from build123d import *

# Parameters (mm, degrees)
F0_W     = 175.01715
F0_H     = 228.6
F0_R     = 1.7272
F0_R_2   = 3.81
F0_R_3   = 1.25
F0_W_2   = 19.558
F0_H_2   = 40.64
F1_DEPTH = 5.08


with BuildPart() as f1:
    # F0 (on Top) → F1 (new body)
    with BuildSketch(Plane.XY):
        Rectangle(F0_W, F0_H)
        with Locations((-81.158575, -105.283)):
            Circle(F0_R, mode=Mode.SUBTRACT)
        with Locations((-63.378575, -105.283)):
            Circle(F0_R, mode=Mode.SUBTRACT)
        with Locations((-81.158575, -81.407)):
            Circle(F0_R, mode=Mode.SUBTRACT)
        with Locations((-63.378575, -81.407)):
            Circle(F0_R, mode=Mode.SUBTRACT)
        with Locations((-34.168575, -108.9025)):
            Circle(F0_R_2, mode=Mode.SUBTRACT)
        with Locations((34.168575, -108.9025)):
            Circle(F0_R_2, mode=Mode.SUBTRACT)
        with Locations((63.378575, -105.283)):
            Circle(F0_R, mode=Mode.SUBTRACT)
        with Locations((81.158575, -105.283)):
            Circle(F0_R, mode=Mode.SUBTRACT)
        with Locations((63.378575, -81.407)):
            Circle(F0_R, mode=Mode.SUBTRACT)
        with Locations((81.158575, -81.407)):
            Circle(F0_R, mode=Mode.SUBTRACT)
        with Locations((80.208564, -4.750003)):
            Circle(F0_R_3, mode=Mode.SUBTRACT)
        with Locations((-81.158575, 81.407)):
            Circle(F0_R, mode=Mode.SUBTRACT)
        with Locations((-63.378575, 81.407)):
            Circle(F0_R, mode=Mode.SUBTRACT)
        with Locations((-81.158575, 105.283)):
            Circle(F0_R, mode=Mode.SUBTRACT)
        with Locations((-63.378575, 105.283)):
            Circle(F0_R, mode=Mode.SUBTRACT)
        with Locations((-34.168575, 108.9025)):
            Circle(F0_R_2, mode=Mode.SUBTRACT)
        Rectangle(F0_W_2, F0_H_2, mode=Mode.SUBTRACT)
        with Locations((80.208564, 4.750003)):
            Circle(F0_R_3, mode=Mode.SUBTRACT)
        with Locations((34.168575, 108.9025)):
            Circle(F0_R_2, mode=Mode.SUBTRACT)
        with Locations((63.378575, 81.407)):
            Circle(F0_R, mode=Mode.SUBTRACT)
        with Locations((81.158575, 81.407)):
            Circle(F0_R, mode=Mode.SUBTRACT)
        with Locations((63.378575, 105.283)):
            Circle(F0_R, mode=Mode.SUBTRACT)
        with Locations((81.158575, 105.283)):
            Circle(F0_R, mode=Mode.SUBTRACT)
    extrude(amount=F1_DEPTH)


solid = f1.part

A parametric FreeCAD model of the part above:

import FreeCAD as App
import Part
import Sketcher
from FreeCAD import Vector
Q = App.Units.Quantity


def add_polygon(sketch, points):
    """Adds a closed chain of lines whose ends are joined by coincident constraints."""
    first, n = sketch.GeometryCount, len(points)
    for a, b in zip(points, points[1:] + points[:1]):
        sketch.addGeometry(Part.LineSegment(App.Vector(*a, 0), App.Vector(*b, 0)), False)
    for i in range(n):
        sketch.addConstraint(Sketcher.Constraint("Coincident", first + i, 2, first + (i + 1) % n, 1))

doc = App.newDocument("Part")
body = doc.addObject("PartDesign::Body", "Body")

sketch1 = body.newObject("Sketcher::SketchObject", "Sketch")
sketch1.AttachmentSupport = (doc.getObject("XY_Plane"), [""])
sketch1.MapMode = "FlatFace"
add_polygon(sketch1, [(-87.5, 114.3), (-87.5, -114.3), (87.5, -114.3), (87.5, 114.3)])
sketch1.addGeometry(Part.Circle(Vector(-81.2, -105.3, 0), Vector(0, 0, 1), 1.7), False)
sketch1.addGeometry(Part.Circle(Vector(-63.4, -105.3, 0), Vector(0, 0, 1), 1.7), False)
sketch1.addGeometry(Part.Circle(Vector(-81.2, -81.4, 0), Vector(0, 0, 1), 1.7), False)
sketch1.addGeometry(Part.Circle(Vector(-63.4, -81.4, 0), Vector(0, 0, 1), 1.7), False)
sketch1.addGeometry(Part.Circle(Vector(-34.2, -108.9, 0), Vector(0, 0, 1), 3.8), False)
sketch1.addGeometry(Part.Circle(Vector(34.2, -108.9, 0), Vector(0, 0, 1), 3.8), False)
sketch1.addGeometry(Part.Circle(Vector(63.4, -105.3, 0), Vector(0, 0, 1), 1.7), False)
sketch1.addGeometry(Part.Circle(Vector(81.2, -105.3, 0), Vector(0, 0, 1), 1.7), False)
sketch1.addGeometry(Part.Circle(Vector(63.4, -81.4, 0), Vector(0, 0, 1), 1.7), False)
sketch1.addGeometry(Part.Circle(Vector(81.2, -81.4, 0), Vector(0, 0, 1), 1.7), False)
add_polygon(sketch1, [(9.8, -20.3), (-9.8, -20.3), (-9.8, 20.3), (9.8, 20.3)])
sketch1.addGeometry(Part.Circle(Vector(80.2, -4.8, 0), Vector(0, 0, 1), 1.2), False)
sketch1.addGeometry(Part.Circle(Vector(-81.2, 81.4, 0), Vector(0, 0, 1), 1.7), False)
sketch1.addGeometry(Part.Circle(Vector(-63.4, 81.4, 0), Vector(0, 0, 1), 1.7), False)
sketch1.addGeometry(Part.Circle(Vector(-81.2, 105.3, 0), Vector(0, 0, 1), 1.7), False)
sketch1.addGeometry(Part.Circle(Vector(-63.4, 105.3, 0), Vector(0, 0, 1), 1.7), False)
sketch1.addGeometry(Part.Circle(Vector(-34.2, 108.9, 0), Vector(0, 0, 1), 3.8), False)
sketch1.addGeometry(Part.Circle(Vector(80.2, 4.8, 0), Vector(0, 0, 1), 1.2), False)
sketch1.addGeometry(Part.Circle(Vector(34.2, 108.9, 0), Vector(0, 0, 1), 3.8), False)
sketch1.addGeometry(Part.Circle(Vector(63.4, 81.4, 0), Vector(0, 0, 1), 1.7), False)
sketch1.addGeometry(Part.Circle(Vector(81.2, 81.4, 0), Vector(0, 0, 1), 1.7), False)
sketch1.addGeometry(Part.Circle(Vector(63.4, 105.3, 0), Vector(0, 0, 1), 1.7), False)
sketch1.addGeometry(Part.Circle(Vector(81.2, 105.3, 0), Vector(0, 0, 1), 1.7), False)
sketch1.addConstraint([
    Sketcher.Constraint("Vertical", 0),
    Sketcher.Constraint("Horizontal", 1),
    Sketcher.Constraint("Vertical", 2),
    Sketcher.Constraint("Horizontal", 3),
    Sketcher.Constraint("Horizontal", 14),
    Sketcher.Constraint("Vertical", 15),
    Sketcher.Constraint("Horizontal", 16),
    Sketcher.Constraint("Vertical", 17),
    Sketcher.Constraint("Equal", 4, 5),
    Sketcher.Constraint("Equal", 5, 6),
    Sketcher.Constraint("Equal", 6, 7),
    Sketcher.Constraint("Equal", 8, 9),
    Sketcher.Constraint("Equal", 7, 10),
    Sketcher.Constraint("Equal", 10, 11),
    Sketcher.Constraint("Equal", 11, 12),
    Sketcher.Constraint("Equal", 12, 13),
    Sketcher.Constraint("Equal", 13, 19),
    Sketcher.Constraint("Equal", 19, 20),
    Sketcher.Constraint("Equal", 20, 21),
    Sketcher.Constraint("Equal", 21, 22),
    Sketcher.Constraint("Equal", 9, 23),
    Sketcher.Constraint("Equal", 18, 24),
    Sketcher.Constraint("Equal", 23, 25),
    Sketcher.Constraint("Equal", 22, 26),
    Sketcher.Constraint("Equal", 26, 27),
    Sketcher.Constraint("Equal", 27, 28),
    Sketcher.Constraint("Equal", 28, 29),
    Sketcher.Constraint("Symmetric", 13, 3, 19, 3, -1, 1),
    Sketcher.Constraint("Symmetric", 12, 3, 20, 3, -1, 1),
    Sketcher.Constraint("Symmetric", 11, 3, 21, 3, -1, 1),
    Sketcher.Constraint("Symmetric", 10, 3, 22, 3, -1, 1),
    Sketcher.Constraint("Symmetric", 9, 3, 23, 3, -1, 1),
    Sketcher.Constraint("Symmetric", 8, 3, 25, 3, -1, 1),
    Sketcher.Constraint("Symmetric", 7, 3, 26, 3, -1, 1),
    Sketcher.Constraint("Symmetric", 6, 3, 27, 3, -1, 1),
    Sketcher.Constraint("Symmetric", 5, 3, 28, 3, -1, 1),
    Sketcher.Constraint("Symmetric", 4, 3, 29, 3, -1, 1),
    Sketcher.Constraint("Symmetric", 0, 2, 2, 2, -1, 1),
    Sketcher.Constraint("Symmetric", 14, 2, 16, 2, -1, 1),
    Sketcher.Constraint("Symmetric", 8, 3, 9, 3, -2),
    Sketcher.Constraint("Symmetric", 5, 3, 10, 3, -2),
    Sketcher.Constraint("Symmetric", 4, 3, 11, 3, -2),
    Sketcher.Constraint("Symmetric", 7, 3, 12, 3, -2),
    Sketcher.Constraint("Symmetric", 6, 3, 13, 3, -2),
    Sketcher.Constraint("Symmetric", 18, 3, 24, 3, -1),
    Sketcher.Constraint("Horizontal", 4, 3, 5, 3),
    Sketcher.Constraint("Horizontal", 6, 3, 7, 3),
    Sketcher.Constraint("Vertical", 4, 3, 6, 3),
    Sketcher.Constraint("Vertical", 5, 3, 7, 3),
    Sketcher.Constraint("Diameter", 8, Q("0.3 in")),
    Sketcher.Constraint("DistanceY", 0, 2, 0, 1, Q("9 in")),
    Sketcher.Constraint("Diameter", 4, Q("0.136 in")),
    Sketcher.Constraint("DistanceY", 15, 1, 15, 2, Q("1.6 in")),
    Sketcher.Constraint("DistanceX", 14, 2, 14, 1, Q("0.77 in")),
    Sketcher.Constraint("DistanceX", 4, 3, 5, 3, Q("0.7 in")),
    Sketcher.Constraint("DistanceX", 0, 2, 8, 3, Q("2.1 in")),
    Sketcher.Constraint("Diameter", 18, Q("2.5 mm")),
    Sketcher.Constraint("DistanceY", 4, 3, 6, 3, Q("0.94 in")),
    Sketcher.Constraint("DistanceX", 5, 3, 8, 3, Q("1.15 in")),
    Sketcher.Constraint("DistanceY", 6, 3, 19, 3, Q("6.41 in")),
    Sketcher.Constraint("DistanceY", 8, 3, -1, 1, Q("4.2875 in")),
    Sketcher.Constraint("DistanceX", 1, 1, 1, 2, Q("175.01715 mm")),
    Sketcher.Constraint("DistanceX", 18, 3, 13, 3, Q("0.950011 mm")),
    Sketcher.Constraint("DistanceY", 18, 3, -1, 1, Q("4.750003 mm")),
])
pad1 = body.newObject("PartDesign::Pad", "Pad")
pad1.Profile = sketch1
pad1.Length = Q("0.2 in")

doc.recompute()
